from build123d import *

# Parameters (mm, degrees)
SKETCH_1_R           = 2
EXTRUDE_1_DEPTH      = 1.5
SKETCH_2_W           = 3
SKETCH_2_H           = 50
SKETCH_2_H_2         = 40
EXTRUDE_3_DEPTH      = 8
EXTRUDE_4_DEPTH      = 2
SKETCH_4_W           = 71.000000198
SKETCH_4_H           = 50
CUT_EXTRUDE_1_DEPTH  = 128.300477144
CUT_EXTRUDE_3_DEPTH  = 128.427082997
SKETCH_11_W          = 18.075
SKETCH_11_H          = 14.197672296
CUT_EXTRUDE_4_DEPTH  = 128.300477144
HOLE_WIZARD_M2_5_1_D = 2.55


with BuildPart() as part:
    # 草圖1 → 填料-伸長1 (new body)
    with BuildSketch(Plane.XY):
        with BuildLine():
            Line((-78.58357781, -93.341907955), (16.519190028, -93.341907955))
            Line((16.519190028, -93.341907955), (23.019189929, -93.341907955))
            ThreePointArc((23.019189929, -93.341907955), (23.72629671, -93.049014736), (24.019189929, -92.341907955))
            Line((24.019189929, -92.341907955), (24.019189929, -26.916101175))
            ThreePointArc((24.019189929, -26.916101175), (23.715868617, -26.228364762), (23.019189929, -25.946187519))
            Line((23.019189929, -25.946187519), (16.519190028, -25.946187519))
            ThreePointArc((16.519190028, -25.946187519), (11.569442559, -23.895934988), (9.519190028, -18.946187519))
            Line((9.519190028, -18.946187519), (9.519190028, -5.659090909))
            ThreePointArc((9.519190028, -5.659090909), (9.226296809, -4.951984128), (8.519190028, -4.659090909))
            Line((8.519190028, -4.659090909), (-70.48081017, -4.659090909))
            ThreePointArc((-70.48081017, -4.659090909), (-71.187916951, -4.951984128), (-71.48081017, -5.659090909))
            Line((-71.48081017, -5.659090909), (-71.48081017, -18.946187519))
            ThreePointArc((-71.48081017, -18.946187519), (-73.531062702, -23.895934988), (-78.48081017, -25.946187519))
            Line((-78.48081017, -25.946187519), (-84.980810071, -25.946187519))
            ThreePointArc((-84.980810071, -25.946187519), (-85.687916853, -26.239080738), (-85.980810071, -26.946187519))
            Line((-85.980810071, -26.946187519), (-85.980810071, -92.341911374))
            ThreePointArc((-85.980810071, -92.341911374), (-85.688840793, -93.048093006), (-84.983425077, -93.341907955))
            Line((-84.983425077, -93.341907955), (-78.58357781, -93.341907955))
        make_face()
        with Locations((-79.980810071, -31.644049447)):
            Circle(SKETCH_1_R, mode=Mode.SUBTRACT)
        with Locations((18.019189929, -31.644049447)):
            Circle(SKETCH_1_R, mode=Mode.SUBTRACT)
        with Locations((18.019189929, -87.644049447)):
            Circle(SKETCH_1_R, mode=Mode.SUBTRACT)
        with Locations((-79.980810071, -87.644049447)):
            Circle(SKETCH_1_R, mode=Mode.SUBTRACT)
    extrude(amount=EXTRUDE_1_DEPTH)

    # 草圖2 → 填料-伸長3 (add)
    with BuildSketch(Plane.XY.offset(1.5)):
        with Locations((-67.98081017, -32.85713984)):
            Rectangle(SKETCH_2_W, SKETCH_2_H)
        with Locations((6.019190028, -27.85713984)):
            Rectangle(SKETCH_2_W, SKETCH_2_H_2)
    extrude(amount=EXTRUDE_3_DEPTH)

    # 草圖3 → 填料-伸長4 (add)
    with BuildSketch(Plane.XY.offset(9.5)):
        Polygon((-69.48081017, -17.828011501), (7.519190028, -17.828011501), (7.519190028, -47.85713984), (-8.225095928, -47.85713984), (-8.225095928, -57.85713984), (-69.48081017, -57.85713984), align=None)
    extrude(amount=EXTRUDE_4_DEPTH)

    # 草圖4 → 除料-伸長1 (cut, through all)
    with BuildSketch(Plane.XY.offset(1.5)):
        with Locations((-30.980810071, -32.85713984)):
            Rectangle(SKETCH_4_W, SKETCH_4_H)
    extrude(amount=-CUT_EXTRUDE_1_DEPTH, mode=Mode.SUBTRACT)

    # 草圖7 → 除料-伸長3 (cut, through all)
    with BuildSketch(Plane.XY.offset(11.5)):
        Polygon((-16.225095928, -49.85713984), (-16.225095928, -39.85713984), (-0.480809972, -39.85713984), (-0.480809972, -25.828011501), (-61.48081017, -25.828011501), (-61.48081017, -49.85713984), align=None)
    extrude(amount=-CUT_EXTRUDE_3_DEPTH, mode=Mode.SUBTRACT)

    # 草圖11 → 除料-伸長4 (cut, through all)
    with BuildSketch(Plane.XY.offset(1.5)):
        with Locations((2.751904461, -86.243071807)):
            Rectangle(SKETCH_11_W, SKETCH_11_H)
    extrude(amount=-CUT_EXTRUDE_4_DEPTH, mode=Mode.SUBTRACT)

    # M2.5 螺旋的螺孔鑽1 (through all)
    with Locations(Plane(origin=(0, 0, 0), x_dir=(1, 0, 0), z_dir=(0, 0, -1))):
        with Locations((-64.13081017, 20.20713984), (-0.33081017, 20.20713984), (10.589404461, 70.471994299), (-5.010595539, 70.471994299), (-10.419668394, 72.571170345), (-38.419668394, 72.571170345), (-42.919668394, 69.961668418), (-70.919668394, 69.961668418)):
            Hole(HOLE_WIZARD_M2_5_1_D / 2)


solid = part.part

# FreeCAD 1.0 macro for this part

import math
import FreeCAD as App
import Part
import Sketcher
from FreeCAD import Vector


def add_polygon(sketch, points):
    """Adds a closed chain of lines whose ends are joined by coincident constraints."""
    first, n = sketch.GeometryCount, len(points)
    for a, b in zip(points, points[1:] + points[:1]):
        sketch.addGeometry(Part.LineSegment(App.Vector(*a, 0), App.Vector(*b, 0)), False)
    for i in range(n):
        sketch.addConstraint(Sketcher.Constraint("Coincident", first + i, 2, first + (i + 1) % n, 1))

doc = App.newDocument("Part")
body = doc.addObject("PartDesign::Body", "Body")

# Sketch on XY plane
sketch1 = body.newObject("Sketcher::SketchObject", "Sketch")
sketch1.AttachmentSupport = (doc.getObject("XY_Plane"), [""])
sketch1.MapMode = "FlatFace"
sketch1.addGeometry([
    Part.ArcOfCircle(Part.Circle(Vector(23.01919, -92.341908, 0), Vector(0, 0, 1), 1), math.radians(-90), math.radians(0)),  # 0
    Part.LineSegment(Vector(24.01919, -92.341908, 0), Vector(24.01919, -26.916101, 0)),  # 1
    Part.ArcOfCircle(Part.Circle(Vector(23.019643, -26.946187, 0), Vector(0, 0, 1), 1), math.radians(1.724075), math.radians(90.025937)),  # 2
    Part.LineSegment(Vector(23.01919, -25.946188, 0), Vector(16.51919, -25.946188, 0)),  # 3
    Part.ArcOfCircle(Part.Circle(Vector(16.51919, -18.946188, 0), Vector(0, 0, 1), 7), math.radians(180), math.radians(270)),  # 4
    Part.LineSegment(Vector(9.51919, -18.946188, 0), Vector(9.51919, -5.659091, 0)),  # 5
    Part.ArcOfCircle(Part.Circle(Vector(8.51919, -5.659091, 0), Vector(0, 0, 1), 1), math.radians(0), math.radians(90)),  # 6
    Part.LineSegment(Vector(8.51919, -4.659091, 0), Vector(-70.48081, -4.659091, 0)),  # 7
    Part.ArcOfCircle(Part.Circle(Vector(-70.48081, -5.659091, 0), Vector(0, 0, 1), 1), math.radians(90), math.radians(180)),  # 8
    Part.LineSegment(Vector(-71.48081, -5.659091, 0), Vector(-71.48081, -18.946188, 0)),  # 9
    Part.ArcOfCircle(Part.Circle(Vector(-78.48081, -18.946188, 0), Vector(0, 0, 1), 7), math.radians(-90), math.radians(0)),  # 10
    Part.LineSegment(Vector(-78.48081, -25.946188, 0), Vector(-84.98081, -25.946188, 0)),  # 11
    Part.ArcOfCircle(Part.Circle(Vector(-84.98081, -26.946188, 0), Vector(0, 0, 1), 1), math.radians(90), math.radians(180)),  # 12
    Part.LineSegment(Vector(-85.98081, -26.946188, 0), Vector(-85.98081, -92.341911, 0)),  # 13
    Part.ArcOfCircle(Part.Circle(Vector(-84.98081, -92.341911, 0), Vector(0, 0, 1), 1), math.radians(180), math.radians(269.850171)),  # 14
    Part.LineSegment(Vector(-84.983425, -93.341908, 0), Vector(23.01919, -93.341908, 0)),  # 15
    Part.Circle(Vector(-79.98081, -87.644049, 0), Vector(0, 0, 1), 2),  # 16
    Part.Circle(Vector(18.01919, -87.644049, 0), Vector(0, 0, 1), 2),  # 17
    Part.Circle(Vector(-79.98081, -31.644049, 0), Vector(0, 0, 1), 2),  # 18
    Part.Circle(Vector(18.01919, -31.644049, 0), Vector(0, 0, 1), 2),  # 19
], False)
sketch1.addConstraint([
    Sketcher.Constraint("Tangent", 0, 2, 1, 1),
    Sketcher.Constraint("Coincident", 1, 2, 2, 1),
    Sketcher.Constraint("Coincident", 2, 2, 3, 1),
    Sketcher.Constraint("Tangent", 3, 2, 4, 2),
    Sketcher.Constraint("Tangent", 4, 1, 5, 1),
    Sketcher.Constraint("Tangent", 5, 2, 6, 1),
    Sketcher.Constraint("Tangent", 6, 2, 7, 1),
    Sketcher.Constraint("Tangent", 7, 2, 8, 1),
    Sketcher.Constraint("Tangent", 8, 2, 9, 1),
    Sketcher.Constraint("Tangent", 9, 2, 10, 2),
    Sketcher.Constraint("Tangent", 10, 1, 11, 1),
    Sketcher.Constraint("Tangent", 11, 2, 12, 1),
    Sketcher.Constraint("Tangent", 12, 2, 13, 1),
    Sketcher.Constraint("Tangent", 13, 2, 14, 1),
    Sketcher.Constraint("Coincident", 14, 2, 15, 1),
    Sketcher.Constraint("Tangent", 15, 2, 0, 1),
    Sketcher.Constraint("Vertical", 1),
    Sketcher.Constraint("Horizontal", 3),
    Sketcher.Constraint("Vertical", 5),
    Sketcher.Constraint("Horizontal", 7),
    Sketcher.Constraint("Vertical", 9),
    Sketcher.Constraint("Horizontal", 11),
    Sketcher.Constraint("Vertical", 13),
    Sketcher.Constraint("Horizontal", 15),
    Sketcher.Constraint("Equal", 0, 2),
    Sketcher.Constraint("Equal", 2, 6),
    Sketcher.Constraint("Equal", 6, 8),
    Sketcher.Constraint("Equal", 4, 10),
    Sketcher.Constraint("Equal", 8, 12),
    Sketcher.Constraint("Equal", 12, 14),
    Sketcher.Constraint("Equal", 16, 17),
    Sketcher.Constraint("Equal", 17, 18),
    Sketcher.Constraint("Equal", 18, 19),
    Sketcher.Constraint("Horizontal", 4, 3, 10, 3),
    Sketcher.Constraint("Horizontal", 16, 3, 17, 3),
    Sketcher.Constraint("Horizontal", 18, 3, 19, 3),
    Sketcher.Constraint("Vertical", 16, 3, 18, 3),
    Sketcher.Constraint("Vertical", 17, 3, 19, 3),
    Sketcher.Constraint("Vertical", 0, 3, 2, 2),
    Sketcher.Constraint("Equal", 3, 11),
    Sketcher.Constraint("Diameter", 16, 4.0),
    Sketcher.Constraint("Radius", 0, 1.0),
    Sketcher.Constraint("Radius", 4, 7.0),
    Sketcher.Constraint("DistanceX", 7, 2, 7, 1, 79.0),
    Sketcher.Constraint("DistanceX", 3, 2, 3, 1, 6.5),
    Sketcher.Constraint("DistanceX", 14, 3, 16, 3, 5.0),
    Sketcher.Constraint("DistanceX", 17, 3, 0, 3, 5.0),
    Sketcher.Constraint("DistanceY", 16, 3, 18, 3, 56.0),
    Sketcher.Constraint("DistanceY", 1, 2, -1, 1, 26.916101),
    Sketcher.Constraint("DistanceX", 15, 1, 15, 2, 108.002615),
    Sketcher.Constraint("DistanceY", 1, 1, 1, 2, 65.425807),
    Sketcher.Constraint("DistanceY", 5, 1, 5, 2, 13.287097),
    Sketcher.Constraint("DistanceY", 13, 2, 13, 1, 65.395724),
    Sketcher.Constraint("DistanceX", -1, 1, 0, 3, 23.01919),
    Sketcher.Constraint("DistanceY", 16, 3, -1, 1, 87.644049),
])
pad1 = body.newObject("PartDesign::Pad", "Pad")
pad1.Profile = sketch1
pad1.Length = 1.5

# Sketch on XY plane
sketch2 = body.newObject("Sketcher::SketchObject", "Sketch001")
sketch2.AttachmentSupport = (doc.getObject("XY_Plane"), [""])
sketch2.MapMode = "FlatFace"
sketch2.AttachmentOffset = App.Placement(Vector(0, 0, 1.5), App.Rotation())
add_polygon(sketch2, [(-69.48081, -7.85714), (-69.48081, -57.85714), (-66.48081, -57.85714), (-66.48081, -7.85714)])  # lines 0-3
add_polygon(sketch2, [(4.51919, -7.85714), (4.51919, -47.85714), (7.51919, -47.85714), (7.51919, -7.85714)])  # lines 4-7
sketch2.addConstraint([
    Sketcher.Constraint("Vertical", 0),
    Sketcher.Constraint("Horizontal", 1),
    Sketcher.Constraint("Vertical", 2),
    Sketcher.Constraint("Horizontal", 3),
    Sketcher.Constraint("Vertical", 4),
    Sketcher.Constraint("Horizontal", 5),
    Sketcher.Constraint("Vertical", 6),
    Sketcher.Constraint("Horizontal", 7),
    Sketcher.Constraint("Horizontal", 3, 2, 6, 2),
    Sketcher.Constraint("Equal", 3, 5),
    Sketcher.Constraint("DistanceX", 1, 1, 1, 2, 3.0),
    Sketcher.Constraint("DistanceY", 0, 2, 0, 1, 50.0),
    Sketcher.Constraint("DistanceY", 4, 2, 4, 1, 40.0),
    Sketcher.Constraint("DistanceX", 1, 2, 4, 2, 71.0),
    Sketcher.Constraint("DistanceX", 0, 2, -1, 1, 69.48081),
    Sketcher.Constraint("DistanceY", 0, 2, -1, 1, 57.85714),
])
pad2 = body.newObject("PartDesign::Pad", "Pad001")
pad2.Profile = sketch2
pad2.Length = 8

# Sketch on XY plane
sketch3 = body.newObject("Sketcher::SketchObject", "Sketch002")
sketch3.AttachmentSupport = (doc.getObject("XY_Plane"), [""])
sketch3.MapMode = "FlatFace"
sketch3.AttachmentOffset = App.Placement(Vector(0, 0, 9.5), App.Rotation())
add_polygon(sketch3, [(7.51919, -17.828012), (-69.48081, -17.828012), (-69.48081, -57.85714), (-8.225096, -57.85714), (-8.225096, -47.85714), (7.51919, -47.85714)])  # lines 0-5
sketch3.addConstraint([
    Sketcher.Constraint("Horizontal", 0),
    Sketcher.Constraint("Vertical", 1),
    Sketcher.Constraint("Horizontal", 2),
    Sketcher.Constraint("Vertical", 3),
    Sketcher.Constraint("Horizontal", 4),
    Sketcher.Constraint("Vertical", 5),
    Sketcher.Constraint("DistanceX", 0, 2, 0, 1, 77.0),
    Sketcher.Constraint("DistanceY", 3, 1, 3, 2, 10.0),
    Sketcher.Constraint("DistanceY", 1, 2, 1, 1, 40.029128),
    Sketcher.Constraint("DistanceX", 2, 1, 2, 2, 61.255714),
    Sketcher.Constraint("DistanceX", 0, 2, -1, 1, 69.48081),
    Sketcher.Constraint("DistanceY", 0, 2, -1, 1, 17.828012),
])
pad3 = body.newObject("PartDesign::Pad", "Pad002")
pad3.Profile = sketch3
pad3.Length = 2

# Sketch on XY plane
sketch4 = body.newObject("Sketcher::SketchObject", "Sketch003")
sketch4.AttachmentSupport = (doc.getObject("XY_Plane"), [""])
sketch4.MapMode = "FlatFace"
sketch4.AttachmentOffset = App.Placement(Vector(0, 0, 1.5), App.Rotation())
add_polygon(sketch4, [(-66.48081, -7.85714), (-66.48081, -57.85714), (4.51919, -57.85714), (4.51919, -7.85714)])  # lines 0-3
sketch4.addConstraint([
    Sketcher.Constraint("Vertical", 0),
    Sketcher.Constraint("Horizontal", 1),
    Sketcher.Constraint("Vertical", 2),
    Sketcher.Constraint("Horizontal", 3),
    Sketcher.Constraint("DistanceX", 1, 1, 1, 2, 71.0),
    Sketcher.Constraint("DistanceY", 0, 2, 0, 1, 50.0),
    Sketcher.Constraint("DistanceX", 0, 2, -1, 1, 66.48081),
    Sketcher.Constraint("DistanceY", 0, 2, -1, 1, 57.85714),
])
pocket1 = body.newObject("PartDesign::Pocket", "Pocket")
pocket1.Profile = sketch4
pocket1.Type = "ThroughAll"

# Sketch on XY plane
sketch5 = body.newObject("Sketcher::SketchObject", "Sketch004")
sketch5.AttachmentSupport = (doc.getObject("XY_Plane"), [""])
sketch5.MapMode = "FlatFace"
sketch5.AttachmentOffset = App.Placement(Vector(0, 0, 11.5), App.Rotation())
add_polygon(sketch5, [(-16.225096, -49.85714), (-16.225096, -39.85714), (-0.48081, -39.85714), (-0.48081, -25.828012), (-61.48081, -25.828012), (-61.48081, -49.85714)])  # lines 0-5
sketch5.addConstraint([
    Sketcher.Constraint("Vertical", 0),
    Sketcher.Constraint("Horizontal", 1),
    Sketcher.Constraint("Vertical", 2),
    Sketcher.Constraint("Horizontal", 3),
    Sketcher.Constraint("Vertical", 4),
    Sketcher.Constraint("Horizontal", 5),
    Sketcher.Constraint("DistanceX", 3, 2, 3, 1, 61.0),
    Sketcher.Constraint("DistanceY", 0, 1, 0, 2, 10.0),
    Sketcher.Constraint("DistanceY", 2, 1, 2, 2, 14.029128),
    Sketcher.Constraint("DistanceX", 1, 1, 1, 2, 15.744286),
    Sketcher.Constraint("DistanceY", 0, 2, -1, 1, 39.85714),
    Sketcher.Constraint("DistanceX", 1, 2, -1, 1, 0.48081),
])
pocket2 = body.newObject("PartDesign::Pocket", "Pocket001")
pocket2.Profile = sketch5
pocket2.Type = "ThroughAll"

# Sketch on XY plane
sketch6 = body.newObject("Sketcher::SketchObject", "Sketch005")
sketch6.AttachmentSupport = (doc.getObject("XY_Plane"), [""])
sketch6.MapMode = "FlatFace"
sketch6.AttachmentOffset = App.Placement(Vector(0, 0, 1.5), App.Rotation())
add_polygon(sketch6, [(-6.285596, -79.144236), (-6.285596, -93.341908), (11.789404, -93.341908), (11.789404, -79.144236)])  # lines 0-3
sketch6.addConstraint([
    Sketcher.Constraint("Vertical", 0),
    Sketcher.Constraint("Horizontal", 1),
    Sketcher.Constraint("Vertical", 2),
    Sketcher.Constraint("Horizontal", 3),
    Sketcher.Constraint("DistanceX", 1, 1, 1, 2, 18.075),
    Sketcher.Constraint("DistanceY", 0, 2, 0, 1, 14.197672),
    Sketcher.Constraint("DistanceX", 0, 2, -1, 1, 6.285596),
    Sketcher.Constraint("DistanceY", 0, 2, -1, 1, 93.341908),
])
pocket3 = body.newObject("PartDesign::Pocket", "Pocket002")
pocket3.Profile = sketch6
pocket3.Type = "ThroughAll"

# Sketch on XY plane
sketch7 = body.newObject("Sketcher::SketchObject", "Sketch006")
sketch7.AttachmentSupport = (doc.getObject("XY_Plane"), [""])
sketch7.MapMode = "FlatFace"
sketch7.addGeometry([
    Part.Circle(Vector(-64.13081, -20.20714, 0), Vector(0, 0, 1), 1.275),  # 0
    Part.Circle(Vector(-0.33081, -20.20714, 0), Vector(0, 0, 1), 1.275),  # 1
    Part.Circle(Vector(10.589404, -70.471994, 0), Vector(0, 0, 1), 1.275),  # 2
    Part.Circle(Vector(-5.010596, -70.471994, 0), Vector(0, 0, 1), 1.275),  # 3
    Part.Circle(Vector(-10.419668, -72.57117, 0), Vector(0, 0, 1), 1.275),  # 4
    Part.Circle(Vector(-38.419668, -72.57117, 0), Vector(0, 0, 1), 1.275),  # 5
    Part.Circle(Vector(-42.919668, -69.961668, 0), Vector(0, 0, 1), 1.275),  # 6
    Part.Circle(Vector(-70.919668, -69.961668, 0), Vector(0, 0, 1), 1.275),  # 7
], False)
sketch7.addConstraint([
    Sketcher.Constraint("Equal", 0, 1),
    Sketcher.Constraint("Equal", 1, 2),
    Sketcher.Constraint("Equal", 2, 3),
    Sketcher.Constraint("Equal", 3, 4),
    Sketcher.Constraint("Equal", 4, 5),
    Sketcher.Constraint("Equal", 5, 6),
    Sketcher.Constraint("Equal", 6, 7),
    Sketcher.Constraint("Horizontal", 0, 3, 1, 3),
    Sketcher.Constraint("Horizontal", 2, 3, 3, 3),
    Sketcher.Constraint("Horizontal", 4, 3, 5, 3),
    Sketcher.Constraint("Horizontal", 6, 3, 7, 3),
    Sketcher.Constraint("Diameter", 0, 2.55),
    Sketcher.Constraint("DistanceX", 5, 3, 4, 3, 28.0),
    Sketcher.Constraint("DistanceX", 7, 3, 6, 3, 28.0),
    Sketcher.Constraint("DistanceX", 0, 3, 1, 3, 63.8),
    Sketcher.Constraint("DistanceX", 3, 3, 2, 3, 15.6),
    Sketcher.Constraint("DistanceX", 6, 3, 5, 3, 4.5),
    Sketcher.Constraint("DistanceY", 5, 3, 6, 3, 2.609502),
    Sketcher.Constraint("DistanceX", 0, 3, -1, 1, 64.13081),
    Sketcher.Constraint("DistanceY", 0, 3, -1, 1, 20.20714),
    Sketcher.Constraint("DistanceX", 4, 3, -1, 1, 10.419668),
    Sketcher.Constraint("DistanceY", 4, 3, -1, 1, 72.57117),
    Sketcher.Constraint("DistanceX", -1, 1, 2, 3, 10.589404),
    Sketcher.Constraint("DistanceY", 2, 3, -1, 1, 70.471994),
])
doc.recompute()
hole = body.newObject("PartDesign::Hole", "Hole")
hole.Profile = sketch7
hole.ThreadType = "None"
hole.Diameter = 2.55
hole.DepthType = "ThroughAll"
hole.Reversed = True

doc.recompute()
